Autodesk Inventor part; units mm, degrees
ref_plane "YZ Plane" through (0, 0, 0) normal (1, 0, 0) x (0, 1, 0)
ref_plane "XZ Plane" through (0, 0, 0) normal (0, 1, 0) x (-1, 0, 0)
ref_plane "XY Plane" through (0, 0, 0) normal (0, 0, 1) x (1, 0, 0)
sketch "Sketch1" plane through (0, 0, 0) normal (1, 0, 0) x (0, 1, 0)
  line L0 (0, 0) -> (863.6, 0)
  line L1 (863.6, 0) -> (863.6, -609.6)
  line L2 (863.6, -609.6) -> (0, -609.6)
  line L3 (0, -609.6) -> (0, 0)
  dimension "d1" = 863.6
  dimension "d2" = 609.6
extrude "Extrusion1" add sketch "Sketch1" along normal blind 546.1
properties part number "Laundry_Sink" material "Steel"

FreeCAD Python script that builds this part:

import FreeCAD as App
import Part
import Sketcher
from FreeCAD import Vector
Q = App.Units.Quantity

doc = App.newDocument("Part")
body = doc.addObject("PartDesign::Body", "Body")

# Sketch on YZ plane
sketch1 = doc.addObject("Sketcher::SketchObject", "Sketch")
body.addObject(sketch1)
sketch1.AttachmentSupport = (doc.YZ_Plane, [""])
sketch1.MapMode = "FlatFace"
sketch1.addGeometry(Part.LineSegment(Vector(864, 0, 0), Vector(0, 0, 0)), False)
sketch1.addGeometry(Part.LineSegment(Vector(0, 0, 0), Vector(0, -610, 0)), False)
sketch1.addGeometry(Part.LineSegment(Vector(0, -610, 0), Vector(864, -610, 0)), False)
sketch1.addGeometry(Part.LineSegment(Vector(864, -610, 0), Vector(864, 0, 0)), False)
sketch1.addConstraint(Sketcher.Constraint("Coincident", 0, 2, 1, 1))
sketch1.addConstraint(Sketcher.Constraint("Coincident", 1, 2, 2, 1))
sketch1.addConstraint(Sketcher.Constraint("Coincident", 2, 2, 3, 1))
sketch1.addConstraint(Sketcher.Constraint("Coincident", 3, 2, 0, 1))
sketch1.addConstraint(Sketcher.Constraint("Horizontal", 0))
sketch1.addConstraint(Sketcher.Constraint("Vertical", 1))
sketch1.addConstraint(Sketcher.Constraint("Horizontal", 2))
sketch1.addConstraint(Sketcher.Constraint("Vertical", 3))
sketch1.addConstraint(Sketcher.Constraint("Coincident", 0, 2, -1, 1))
sketch1.addConstraint(Sketcher.Constraint("DistanceX", 0, 2, 0, 1, Q("34 in")))
sketch1.addConstraint(Sketcher.Constraint("DistanceY", 1, 2, 1, 1, Q("24 in")))
pad1 = doc.addObject("PartDesign::Pad", "Pad")
body.addObject(pad1)
pad1.Profile = sketch1
pad1.Length = Q("21.5 in")

doc.recompute()
